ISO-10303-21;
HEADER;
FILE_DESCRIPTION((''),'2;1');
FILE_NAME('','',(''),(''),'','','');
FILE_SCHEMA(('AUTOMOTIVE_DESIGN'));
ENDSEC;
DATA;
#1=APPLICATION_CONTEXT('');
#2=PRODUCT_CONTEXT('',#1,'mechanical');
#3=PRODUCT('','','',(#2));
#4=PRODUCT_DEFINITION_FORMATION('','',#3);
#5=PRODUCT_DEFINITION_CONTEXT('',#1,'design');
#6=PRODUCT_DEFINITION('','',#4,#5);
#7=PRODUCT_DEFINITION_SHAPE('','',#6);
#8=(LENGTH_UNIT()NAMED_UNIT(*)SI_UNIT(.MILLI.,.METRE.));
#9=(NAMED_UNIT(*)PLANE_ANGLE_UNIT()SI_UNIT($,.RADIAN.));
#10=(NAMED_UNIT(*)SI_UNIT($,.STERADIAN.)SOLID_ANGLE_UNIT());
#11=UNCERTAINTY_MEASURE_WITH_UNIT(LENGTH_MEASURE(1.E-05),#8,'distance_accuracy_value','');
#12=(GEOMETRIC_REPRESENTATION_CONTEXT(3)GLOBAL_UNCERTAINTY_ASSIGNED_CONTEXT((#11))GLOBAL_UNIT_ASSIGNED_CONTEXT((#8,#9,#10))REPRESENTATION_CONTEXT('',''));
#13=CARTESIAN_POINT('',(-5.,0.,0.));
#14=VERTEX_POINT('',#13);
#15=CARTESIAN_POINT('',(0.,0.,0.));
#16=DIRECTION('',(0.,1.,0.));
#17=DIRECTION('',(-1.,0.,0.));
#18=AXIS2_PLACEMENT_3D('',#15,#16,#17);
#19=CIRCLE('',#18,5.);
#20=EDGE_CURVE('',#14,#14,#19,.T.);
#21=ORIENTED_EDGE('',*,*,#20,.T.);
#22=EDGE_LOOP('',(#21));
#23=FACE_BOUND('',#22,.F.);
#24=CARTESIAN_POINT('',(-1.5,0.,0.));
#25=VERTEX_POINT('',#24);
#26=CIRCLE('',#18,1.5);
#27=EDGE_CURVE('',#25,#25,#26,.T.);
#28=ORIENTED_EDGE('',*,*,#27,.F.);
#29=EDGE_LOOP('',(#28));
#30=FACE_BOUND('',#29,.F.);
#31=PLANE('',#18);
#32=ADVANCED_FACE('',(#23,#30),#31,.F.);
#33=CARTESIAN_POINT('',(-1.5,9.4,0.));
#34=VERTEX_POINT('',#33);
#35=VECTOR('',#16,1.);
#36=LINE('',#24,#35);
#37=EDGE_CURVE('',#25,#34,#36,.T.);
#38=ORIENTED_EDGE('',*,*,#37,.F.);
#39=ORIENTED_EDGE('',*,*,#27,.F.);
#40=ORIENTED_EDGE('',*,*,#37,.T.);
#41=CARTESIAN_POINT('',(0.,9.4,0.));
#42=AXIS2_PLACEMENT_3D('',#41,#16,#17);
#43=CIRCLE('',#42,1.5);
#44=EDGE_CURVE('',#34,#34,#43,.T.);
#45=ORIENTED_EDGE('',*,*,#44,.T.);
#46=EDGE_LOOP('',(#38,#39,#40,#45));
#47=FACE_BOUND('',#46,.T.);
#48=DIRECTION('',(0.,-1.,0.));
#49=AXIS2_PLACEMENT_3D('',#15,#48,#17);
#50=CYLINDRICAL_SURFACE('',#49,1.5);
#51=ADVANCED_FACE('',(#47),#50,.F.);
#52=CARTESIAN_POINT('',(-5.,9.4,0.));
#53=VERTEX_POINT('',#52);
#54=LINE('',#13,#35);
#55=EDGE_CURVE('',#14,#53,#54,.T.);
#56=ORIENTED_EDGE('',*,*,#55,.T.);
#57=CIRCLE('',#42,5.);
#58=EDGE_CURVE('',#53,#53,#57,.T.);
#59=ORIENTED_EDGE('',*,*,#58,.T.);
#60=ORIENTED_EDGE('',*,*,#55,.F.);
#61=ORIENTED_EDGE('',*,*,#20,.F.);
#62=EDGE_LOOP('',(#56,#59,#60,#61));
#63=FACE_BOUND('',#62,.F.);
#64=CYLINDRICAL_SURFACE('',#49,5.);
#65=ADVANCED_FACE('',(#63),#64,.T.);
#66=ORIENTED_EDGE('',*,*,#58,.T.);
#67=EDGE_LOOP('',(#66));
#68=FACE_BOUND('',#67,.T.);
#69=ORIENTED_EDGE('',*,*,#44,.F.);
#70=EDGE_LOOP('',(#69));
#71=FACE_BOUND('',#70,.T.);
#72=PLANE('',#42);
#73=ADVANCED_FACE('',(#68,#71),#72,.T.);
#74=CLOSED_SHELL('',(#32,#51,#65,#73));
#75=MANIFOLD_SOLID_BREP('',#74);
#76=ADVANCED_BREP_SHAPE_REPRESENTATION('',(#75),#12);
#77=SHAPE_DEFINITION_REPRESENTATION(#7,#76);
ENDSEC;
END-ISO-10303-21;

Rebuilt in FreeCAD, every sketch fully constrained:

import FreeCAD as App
import Part
import Sketcher

V = App.Vector
Q = App.Units.Quantity

doc = App.newDocument("Part")
body = doc.addObject("PartDesign::Body", "Body")

# Sketch on XZ plane
sketch1 = body.newObject("Sketcher::SketchObject", "Sketch")
sketch1.AttachmentSupport = (doc.getObject("XZ_Plane"), [""])
sketch1.MapMode = "FlatFace"
sketch1.addGeometry(Part.Circle(V(0, 0, 0), V(0, 0, 1), 5), False)
sketch1.addGeometry(Part.Circle(V(0, 0, 0), V(0, 0, 1), 1.5), False)
sketch1.addConstraint(Sketcher.Constraint("Coincident", 0, 3, -1, 1))
sketch1.addConstraint(Sketcher.Constraint("Coincident", 1, 3, -1, 1))
sketch1.addConstraint(Sketcher.Constraint("Diameter", 0, Q("10 mm")))
sketch1.addConstraint(Sketcher.Constraint("Diameter", 1, Q("3 mm")))
pad1 = body.newObject("PartDesign::Pad", "Pad")
pad1.Profile = sketch1
pad1.Length = 9.4
pad1.Reversed = True

doc.recompute()
